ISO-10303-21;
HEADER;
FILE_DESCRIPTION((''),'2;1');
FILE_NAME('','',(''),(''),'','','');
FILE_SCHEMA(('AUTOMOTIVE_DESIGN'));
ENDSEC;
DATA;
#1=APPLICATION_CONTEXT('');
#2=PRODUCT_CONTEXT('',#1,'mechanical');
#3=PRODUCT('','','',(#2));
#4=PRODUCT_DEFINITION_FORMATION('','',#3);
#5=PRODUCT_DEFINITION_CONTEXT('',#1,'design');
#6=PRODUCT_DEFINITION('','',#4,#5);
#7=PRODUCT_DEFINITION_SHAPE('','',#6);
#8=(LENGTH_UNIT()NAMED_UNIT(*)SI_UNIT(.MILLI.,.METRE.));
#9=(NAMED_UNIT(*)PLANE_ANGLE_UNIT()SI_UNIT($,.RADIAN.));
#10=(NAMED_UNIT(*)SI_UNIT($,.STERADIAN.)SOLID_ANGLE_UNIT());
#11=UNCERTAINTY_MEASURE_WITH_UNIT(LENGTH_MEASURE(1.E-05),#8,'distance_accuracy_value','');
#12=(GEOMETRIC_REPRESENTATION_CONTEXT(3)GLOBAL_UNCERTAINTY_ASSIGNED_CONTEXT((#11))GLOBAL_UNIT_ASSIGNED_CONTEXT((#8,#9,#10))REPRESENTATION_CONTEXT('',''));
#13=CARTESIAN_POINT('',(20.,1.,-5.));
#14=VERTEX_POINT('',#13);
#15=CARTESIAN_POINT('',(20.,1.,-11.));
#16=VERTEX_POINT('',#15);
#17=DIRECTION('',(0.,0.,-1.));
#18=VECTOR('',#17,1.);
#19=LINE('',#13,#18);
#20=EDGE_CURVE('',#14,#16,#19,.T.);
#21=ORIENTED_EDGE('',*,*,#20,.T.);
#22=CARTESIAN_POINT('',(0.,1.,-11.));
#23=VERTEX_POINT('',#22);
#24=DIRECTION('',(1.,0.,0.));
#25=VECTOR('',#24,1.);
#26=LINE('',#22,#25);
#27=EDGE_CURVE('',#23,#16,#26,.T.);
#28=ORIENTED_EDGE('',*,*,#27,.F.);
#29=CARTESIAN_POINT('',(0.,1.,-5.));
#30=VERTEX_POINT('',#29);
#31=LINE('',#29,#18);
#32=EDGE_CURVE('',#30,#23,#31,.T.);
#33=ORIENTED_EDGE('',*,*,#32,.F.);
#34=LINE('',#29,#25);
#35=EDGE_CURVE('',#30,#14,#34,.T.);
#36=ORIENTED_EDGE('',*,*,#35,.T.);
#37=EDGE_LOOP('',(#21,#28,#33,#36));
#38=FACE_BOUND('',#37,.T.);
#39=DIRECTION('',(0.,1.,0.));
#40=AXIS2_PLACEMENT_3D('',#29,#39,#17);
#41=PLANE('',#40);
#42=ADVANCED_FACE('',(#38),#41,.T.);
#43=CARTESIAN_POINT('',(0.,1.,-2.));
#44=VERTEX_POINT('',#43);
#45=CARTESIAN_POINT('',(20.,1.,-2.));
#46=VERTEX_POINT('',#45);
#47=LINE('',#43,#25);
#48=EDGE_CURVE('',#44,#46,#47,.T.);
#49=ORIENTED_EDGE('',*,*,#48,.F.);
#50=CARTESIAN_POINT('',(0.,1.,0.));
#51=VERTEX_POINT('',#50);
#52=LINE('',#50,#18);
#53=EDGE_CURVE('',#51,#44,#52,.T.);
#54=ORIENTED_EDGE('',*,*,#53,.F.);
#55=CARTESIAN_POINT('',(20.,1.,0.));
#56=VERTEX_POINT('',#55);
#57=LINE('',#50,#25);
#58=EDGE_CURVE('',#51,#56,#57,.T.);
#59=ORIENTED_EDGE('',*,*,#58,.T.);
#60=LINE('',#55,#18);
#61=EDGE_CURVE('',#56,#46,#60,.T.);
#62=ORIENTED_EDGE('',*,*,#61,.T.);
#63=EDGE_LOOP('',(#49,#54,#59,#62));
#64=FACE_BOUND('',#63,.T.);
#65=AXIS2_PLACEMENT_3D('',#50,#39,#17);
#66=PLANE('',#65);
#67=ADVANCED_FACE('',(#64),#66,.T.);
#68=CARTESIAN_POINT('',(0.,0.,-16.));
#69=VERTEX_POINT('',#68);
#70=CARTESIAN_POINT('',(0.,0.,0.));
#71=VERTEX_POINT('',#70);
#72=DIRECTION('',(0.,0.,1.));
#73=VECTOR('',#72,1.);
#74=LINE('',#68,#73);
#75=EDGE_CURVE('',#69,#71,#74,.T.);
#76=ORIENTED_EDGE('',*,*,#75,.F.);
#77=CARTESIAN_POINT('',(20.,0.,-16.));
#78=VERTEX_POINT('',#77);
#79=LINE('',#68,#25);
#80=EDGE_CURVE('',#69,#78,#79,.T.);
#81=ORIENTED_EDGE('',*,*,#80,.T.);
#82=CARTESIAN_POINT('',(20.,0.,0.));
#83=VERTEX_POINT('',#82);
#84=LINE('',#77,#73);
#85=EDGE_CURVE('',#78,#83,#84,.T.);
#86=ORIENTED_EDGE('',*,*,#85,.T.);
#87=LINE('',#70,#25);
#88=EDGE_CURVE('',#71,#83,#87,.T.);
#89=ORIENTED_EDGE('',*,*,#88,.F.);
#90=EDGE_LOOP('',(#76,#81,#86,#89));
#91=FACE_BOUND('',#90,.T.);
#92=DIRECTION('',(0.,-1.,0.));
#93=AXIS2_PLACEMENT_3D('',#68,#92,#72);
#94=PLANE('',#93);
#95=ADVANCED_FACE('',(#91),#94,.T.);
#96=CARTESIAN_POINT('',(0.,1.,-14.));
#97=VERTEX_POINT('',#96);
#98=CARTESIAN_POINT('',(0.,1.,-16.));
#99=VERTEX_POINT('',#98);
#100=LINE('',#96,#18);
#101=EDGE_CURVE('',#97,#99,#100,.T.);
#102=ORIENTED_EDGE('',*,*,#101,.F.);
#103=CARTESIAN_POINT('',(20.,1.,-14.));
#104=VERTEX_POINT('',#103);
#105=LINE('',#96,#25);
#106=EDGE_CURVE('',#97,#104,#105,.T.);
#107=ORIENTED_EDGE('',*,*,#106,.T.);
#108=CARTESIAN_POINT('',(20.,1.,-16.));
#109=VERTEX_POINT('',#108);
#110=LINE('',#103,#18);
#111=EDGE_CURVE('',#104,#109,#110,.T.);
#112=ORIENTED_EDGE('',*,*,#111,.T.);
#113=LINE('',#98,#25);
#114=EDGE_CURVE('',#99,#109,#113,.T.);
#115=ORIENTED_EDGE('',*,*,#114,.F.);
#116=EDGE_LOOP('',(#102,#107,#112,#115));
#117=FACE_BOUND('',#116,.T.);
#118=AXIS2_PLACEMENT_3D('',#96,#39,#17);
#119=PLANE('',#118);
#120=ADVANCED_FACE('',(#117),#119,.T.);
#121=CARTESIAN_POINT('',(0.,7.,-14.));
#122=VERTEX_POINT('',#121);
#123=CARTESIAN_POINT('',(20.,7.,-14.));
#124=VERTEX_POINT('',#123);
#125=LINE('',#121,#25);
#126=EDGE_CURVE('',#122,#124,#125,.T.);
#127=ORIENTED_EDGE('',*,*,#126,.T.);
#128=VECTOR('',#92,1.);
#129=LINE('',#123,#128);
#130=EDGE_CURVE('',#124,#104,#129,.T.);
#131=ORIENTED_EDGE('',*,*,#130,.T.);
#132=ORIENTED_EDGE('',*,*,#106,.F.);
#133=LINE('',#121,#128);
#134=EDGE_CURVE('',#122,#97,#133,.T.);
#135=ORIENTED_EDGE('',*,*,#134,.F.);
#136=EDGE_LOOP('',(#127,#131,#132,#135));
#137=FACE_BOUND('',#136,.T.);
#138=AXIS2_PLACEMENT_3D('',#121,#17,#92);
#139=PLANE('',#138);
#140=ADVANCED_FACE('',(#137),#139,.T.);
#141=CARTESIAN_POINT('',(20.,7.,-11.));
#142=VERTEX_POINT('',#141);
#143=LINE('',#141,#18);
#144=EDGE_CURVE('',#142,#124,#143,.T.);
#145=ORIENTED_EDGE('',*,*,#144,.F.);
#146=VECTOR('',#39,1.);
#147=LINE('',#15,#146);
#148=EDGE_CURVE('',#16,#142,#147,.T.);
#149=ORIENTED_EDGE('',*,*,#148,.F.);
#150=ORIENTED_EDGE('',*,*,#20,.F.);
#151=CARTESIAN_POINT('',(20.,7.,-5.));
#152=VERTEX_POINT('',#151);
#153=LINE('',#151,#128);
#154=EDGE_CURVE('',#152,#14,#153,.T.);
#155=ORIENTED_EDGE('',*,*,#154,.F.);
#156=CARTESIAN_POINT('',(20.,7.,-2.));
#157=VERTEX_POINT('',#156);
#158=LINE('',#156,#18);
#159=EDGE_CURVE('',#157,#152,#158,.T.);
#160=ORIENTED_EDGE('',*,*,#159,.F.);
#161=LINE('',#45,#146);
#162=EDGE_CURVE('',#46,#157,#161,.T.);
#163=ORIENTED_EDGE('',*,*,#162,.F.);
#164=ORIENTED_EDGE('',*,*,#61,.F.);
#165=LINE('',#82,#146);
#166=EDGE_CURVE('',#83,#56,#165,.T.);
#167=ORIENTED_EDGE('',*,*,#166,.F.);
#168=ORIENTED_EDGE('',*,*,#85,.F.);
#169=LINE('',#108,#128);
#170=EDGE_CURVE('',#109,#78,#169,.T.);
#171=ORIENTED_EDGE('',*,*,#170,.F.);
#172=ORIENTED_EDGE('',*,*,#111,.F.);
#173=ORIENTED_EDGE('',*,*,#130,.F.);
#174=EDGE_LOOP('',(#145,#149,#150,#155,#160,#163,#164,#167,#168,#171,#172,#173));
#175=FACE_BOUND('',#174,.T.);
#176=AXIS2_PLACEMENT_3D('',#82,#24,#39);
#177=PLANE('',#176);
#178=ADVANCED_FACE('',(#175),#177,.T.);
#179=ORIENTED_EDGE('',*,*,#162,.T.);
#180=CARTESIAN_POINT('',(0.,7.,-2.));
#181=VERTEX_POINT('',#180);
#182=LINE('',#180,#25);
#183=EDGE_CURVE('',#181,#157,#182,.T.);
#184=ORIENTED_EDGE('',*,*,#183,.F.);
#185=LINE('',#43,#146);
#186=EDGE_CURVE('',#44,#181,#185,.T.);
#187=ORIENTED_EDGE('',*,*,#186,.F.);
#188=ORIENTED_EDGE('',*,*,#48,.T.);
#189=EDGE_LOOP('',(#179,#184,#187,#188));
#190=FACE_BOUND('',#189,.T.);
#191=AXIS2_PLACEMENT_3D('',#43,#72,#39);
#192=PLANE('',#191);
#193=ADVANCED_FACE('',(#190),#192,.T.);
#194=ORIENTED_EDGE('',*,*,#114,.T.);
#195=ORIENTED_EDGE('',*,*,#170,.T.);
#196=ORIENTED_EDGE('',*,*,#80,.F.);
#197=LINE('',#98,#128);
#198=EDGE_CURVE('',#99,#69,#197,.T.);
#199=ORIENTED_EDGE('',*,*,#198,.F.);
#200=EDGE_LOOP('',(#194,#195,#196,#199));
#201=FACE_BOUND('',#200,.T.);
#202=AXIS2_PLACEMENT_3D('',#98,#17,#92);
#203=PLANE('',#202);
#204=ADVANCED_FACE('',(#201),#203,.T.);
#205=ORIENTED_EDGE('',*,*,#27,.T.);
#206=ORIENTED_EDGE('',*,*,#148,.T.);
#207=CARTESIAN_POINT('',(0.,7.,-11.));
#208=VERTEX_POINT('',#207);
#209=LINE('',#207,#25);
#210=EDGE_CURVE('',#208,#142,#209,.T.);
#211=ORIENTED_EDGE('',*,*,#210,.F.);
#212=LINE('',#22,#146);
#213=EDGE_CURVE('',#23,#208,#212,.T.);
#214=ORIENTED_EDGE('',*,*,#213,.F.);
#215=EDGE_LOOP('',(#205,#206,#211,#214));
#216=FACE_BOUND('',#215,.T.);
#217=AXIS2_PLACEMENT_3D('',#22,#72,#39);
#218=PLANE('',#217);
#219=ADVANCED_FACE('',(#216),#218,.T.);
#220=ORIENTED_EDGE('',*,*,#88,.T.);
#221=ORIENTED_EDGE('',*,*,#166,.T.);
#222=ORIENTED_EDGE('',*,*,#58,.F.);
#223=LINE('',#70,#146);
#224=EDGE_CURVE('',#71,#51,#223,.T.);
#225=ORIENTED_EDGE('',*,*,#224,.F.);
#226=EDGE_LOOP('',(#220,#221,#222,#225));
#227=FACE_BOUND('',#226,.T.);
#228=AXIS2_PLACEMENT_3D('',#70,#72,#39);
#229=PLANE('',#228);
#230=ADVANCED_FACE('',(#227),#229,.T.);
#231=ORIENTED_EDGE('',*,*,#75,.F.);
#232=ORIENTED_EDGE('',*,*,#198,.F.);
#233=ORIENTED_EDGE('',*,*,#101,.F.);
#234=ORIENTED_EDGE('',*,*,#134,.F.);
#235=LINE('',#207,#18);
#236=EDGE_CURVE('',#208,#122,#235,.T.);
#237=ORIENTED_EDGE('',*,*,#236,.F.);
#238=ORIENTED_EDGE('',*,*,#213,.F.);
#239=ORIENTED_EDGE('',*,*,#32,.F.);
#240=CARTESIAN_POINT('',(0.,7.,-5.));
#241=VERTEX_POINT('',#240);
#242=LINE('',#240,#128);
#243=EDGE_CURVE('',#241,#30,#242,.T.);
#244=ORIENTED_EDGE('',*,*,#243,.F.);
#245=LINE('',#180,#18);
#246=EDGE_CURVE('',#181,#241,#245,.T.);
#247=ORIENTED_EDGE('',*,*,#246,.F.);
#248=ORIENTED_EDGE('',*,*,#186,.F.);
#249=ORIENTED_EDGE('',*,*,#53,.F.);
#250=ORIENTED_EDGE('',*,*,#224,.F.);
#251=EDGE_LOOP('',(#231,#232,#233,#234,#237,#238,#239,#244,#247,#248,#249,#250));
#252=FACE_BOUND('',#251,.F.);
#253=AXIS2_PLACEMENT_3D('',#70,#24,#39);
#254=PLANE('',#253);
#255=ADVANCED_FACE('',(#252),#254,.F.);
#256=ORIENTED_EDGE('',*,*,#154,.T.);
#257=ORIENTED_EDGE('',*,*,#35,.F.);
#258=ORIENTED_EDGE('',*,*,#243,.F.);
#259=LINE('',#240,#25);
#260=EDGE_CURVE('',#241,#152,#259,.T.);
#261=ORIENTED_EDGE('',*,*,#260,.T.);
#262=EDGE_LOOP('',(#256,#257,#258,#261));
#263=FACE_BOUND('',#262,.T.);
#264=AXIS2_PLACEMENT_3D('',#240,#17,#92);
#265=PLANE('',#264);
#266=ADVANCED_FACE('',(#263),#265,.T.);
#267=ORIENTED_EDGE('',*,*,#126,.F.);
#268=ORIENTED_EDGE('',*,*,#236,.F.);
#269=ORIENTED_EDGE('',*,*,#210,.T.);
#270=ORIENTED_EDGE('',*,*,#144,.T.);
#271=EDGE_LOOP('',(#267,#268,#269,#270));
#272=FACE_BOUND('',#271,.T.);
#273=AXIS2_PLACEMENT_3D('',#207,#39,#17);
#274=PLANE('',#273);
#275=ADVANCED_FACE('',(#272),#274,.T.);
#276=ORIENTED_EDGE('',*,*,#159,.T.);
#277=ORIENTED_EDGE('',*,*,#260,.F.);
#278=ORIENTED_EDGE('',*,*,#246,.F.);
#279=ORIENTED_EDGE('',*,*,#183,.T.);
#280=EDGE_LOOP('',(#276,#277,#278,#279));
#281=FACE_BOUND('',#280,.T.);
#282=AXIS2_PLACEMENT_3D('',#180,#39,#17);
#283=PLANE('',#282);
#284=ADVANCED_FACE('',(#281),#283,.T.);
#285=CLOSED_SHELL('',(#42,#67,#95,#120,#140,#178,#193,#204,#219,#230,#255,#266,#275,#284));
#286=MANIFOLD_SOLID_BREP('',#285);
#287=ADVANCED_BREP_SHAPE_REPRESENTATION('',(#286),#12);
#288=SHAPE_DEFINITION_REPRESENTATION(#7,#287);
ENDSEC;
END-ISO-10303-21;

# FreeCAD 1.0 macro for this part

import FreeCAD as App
import Part
import Sketcher
from FreeCAD import Vector


def add_polygon(sketch, points):
    """Adds a closed chain of lines whose ends are joined by coincident constraints."""
    first, n = sketch.GeometryCount, len(points)
    for a, b in zip(points, points[1:] + points[:1]):
        sketch.addGeometry(Part.LineSegment(App.Vector(*a, 0), App.Vector(*b, 0)), False)
    for i in range(n):
        sketch.addConstraint(Sketcher.Constraint("Coincident", first + i, 2, first + (i + 1) % n, 1))

doc = App.newDocument("Part")
body = doc.addObject("PartDesign::Body", "Body")

sketch1 = doc.addObject("Sketcher::SketchObject", "Sketch")
body.addObject(sketch1)
sketch1.AttachmentSupport = (doc.YZ_Plane, [""])
sketch1.MapMode = "FlatFace"
add_polygon(sketch1, [(1, 0), (0, 0), (0, -16), (1, -16), (1, -14), (7, -14), (7, -11), (1, -11), (1, -5), (7, -5), (7, -2), (1, -2)])
sketch1.addConstraint(Sketcher.Constraint("Horizontal", 0))
sketch1.addConstraint(Sketcher.Constraint("Vertical", 1))
sketch1.addConstraint(Sketcher.Constraint("Horizontal", 2))
sketch1.addConstraint(Sketcher.Constraint("Vertical", 3))
sketch1.addConstraint(Sketcher.Constraint("Horizontal", 4))
sketch1.addConstraint(Sketcher.Constraint("Vertical", 5))
sketch1.addConstraint(Sketcher.Constraint("Horizontal", 6))
sketch1.addConstraint(Sketcher.Constraint("Vertical", 7))
sketch1.addConstraint(Sketcher.Constraint("Horizontal", 8))
sketch1.addConstraint(Sketcher.Constraint("Vertical", 9))
sketch1.addConstraint(Sketcher.Constraint("Horizontal", 10))
sketch1.addConstraint(Sketcher.Constraint("Vertical", 11))
sketch1.addConstraint(Sketcher.Constraint("Coincident", 0, 2, -1, 1))
sketch1.addConstraint(Sketcher.Constraint("Vertical", 3, 2, 6, 2))
sketch1.addConstraint(Sketcher.Constraint("Vertical", 5, 2, 8, 2))
sketch1.addConstraint(Sketcher.Constraint("Vertical", 7, 2, 10, 2))
sketch1.addConstraint(Sketcher.Constraint("Equal", 10, 7))
sketch1.addConstraint(Sketcher.Constraint("Equal", 5, 9))
sketch1.addConstraint(Sketcher.Constraint("Equal", 3, 11))
sketch1.addConstraint(Sketcher.Constraint("DistanceX", 0, 2, 0, 1, 1.0))
sketch1.addConstraint(Sketcher.Constraint("DistanceX", 4, 1, 4, 2, 6.0))
sketch1.addConstraint(Sketcher.Constraint("DistanceY", 1, 2, 1, 1, 16.0))
sketch1.addConstraint(Sketcher.Constraint("DistanceY", 3, 1, 3, 2, 2.0))
pad1 = doc.addObject("PartDesign::Pad", "Pad")
body.addObject(pad1)
pad1.Profile = sketch1
pad1.Length = 20

doc.recompute()
